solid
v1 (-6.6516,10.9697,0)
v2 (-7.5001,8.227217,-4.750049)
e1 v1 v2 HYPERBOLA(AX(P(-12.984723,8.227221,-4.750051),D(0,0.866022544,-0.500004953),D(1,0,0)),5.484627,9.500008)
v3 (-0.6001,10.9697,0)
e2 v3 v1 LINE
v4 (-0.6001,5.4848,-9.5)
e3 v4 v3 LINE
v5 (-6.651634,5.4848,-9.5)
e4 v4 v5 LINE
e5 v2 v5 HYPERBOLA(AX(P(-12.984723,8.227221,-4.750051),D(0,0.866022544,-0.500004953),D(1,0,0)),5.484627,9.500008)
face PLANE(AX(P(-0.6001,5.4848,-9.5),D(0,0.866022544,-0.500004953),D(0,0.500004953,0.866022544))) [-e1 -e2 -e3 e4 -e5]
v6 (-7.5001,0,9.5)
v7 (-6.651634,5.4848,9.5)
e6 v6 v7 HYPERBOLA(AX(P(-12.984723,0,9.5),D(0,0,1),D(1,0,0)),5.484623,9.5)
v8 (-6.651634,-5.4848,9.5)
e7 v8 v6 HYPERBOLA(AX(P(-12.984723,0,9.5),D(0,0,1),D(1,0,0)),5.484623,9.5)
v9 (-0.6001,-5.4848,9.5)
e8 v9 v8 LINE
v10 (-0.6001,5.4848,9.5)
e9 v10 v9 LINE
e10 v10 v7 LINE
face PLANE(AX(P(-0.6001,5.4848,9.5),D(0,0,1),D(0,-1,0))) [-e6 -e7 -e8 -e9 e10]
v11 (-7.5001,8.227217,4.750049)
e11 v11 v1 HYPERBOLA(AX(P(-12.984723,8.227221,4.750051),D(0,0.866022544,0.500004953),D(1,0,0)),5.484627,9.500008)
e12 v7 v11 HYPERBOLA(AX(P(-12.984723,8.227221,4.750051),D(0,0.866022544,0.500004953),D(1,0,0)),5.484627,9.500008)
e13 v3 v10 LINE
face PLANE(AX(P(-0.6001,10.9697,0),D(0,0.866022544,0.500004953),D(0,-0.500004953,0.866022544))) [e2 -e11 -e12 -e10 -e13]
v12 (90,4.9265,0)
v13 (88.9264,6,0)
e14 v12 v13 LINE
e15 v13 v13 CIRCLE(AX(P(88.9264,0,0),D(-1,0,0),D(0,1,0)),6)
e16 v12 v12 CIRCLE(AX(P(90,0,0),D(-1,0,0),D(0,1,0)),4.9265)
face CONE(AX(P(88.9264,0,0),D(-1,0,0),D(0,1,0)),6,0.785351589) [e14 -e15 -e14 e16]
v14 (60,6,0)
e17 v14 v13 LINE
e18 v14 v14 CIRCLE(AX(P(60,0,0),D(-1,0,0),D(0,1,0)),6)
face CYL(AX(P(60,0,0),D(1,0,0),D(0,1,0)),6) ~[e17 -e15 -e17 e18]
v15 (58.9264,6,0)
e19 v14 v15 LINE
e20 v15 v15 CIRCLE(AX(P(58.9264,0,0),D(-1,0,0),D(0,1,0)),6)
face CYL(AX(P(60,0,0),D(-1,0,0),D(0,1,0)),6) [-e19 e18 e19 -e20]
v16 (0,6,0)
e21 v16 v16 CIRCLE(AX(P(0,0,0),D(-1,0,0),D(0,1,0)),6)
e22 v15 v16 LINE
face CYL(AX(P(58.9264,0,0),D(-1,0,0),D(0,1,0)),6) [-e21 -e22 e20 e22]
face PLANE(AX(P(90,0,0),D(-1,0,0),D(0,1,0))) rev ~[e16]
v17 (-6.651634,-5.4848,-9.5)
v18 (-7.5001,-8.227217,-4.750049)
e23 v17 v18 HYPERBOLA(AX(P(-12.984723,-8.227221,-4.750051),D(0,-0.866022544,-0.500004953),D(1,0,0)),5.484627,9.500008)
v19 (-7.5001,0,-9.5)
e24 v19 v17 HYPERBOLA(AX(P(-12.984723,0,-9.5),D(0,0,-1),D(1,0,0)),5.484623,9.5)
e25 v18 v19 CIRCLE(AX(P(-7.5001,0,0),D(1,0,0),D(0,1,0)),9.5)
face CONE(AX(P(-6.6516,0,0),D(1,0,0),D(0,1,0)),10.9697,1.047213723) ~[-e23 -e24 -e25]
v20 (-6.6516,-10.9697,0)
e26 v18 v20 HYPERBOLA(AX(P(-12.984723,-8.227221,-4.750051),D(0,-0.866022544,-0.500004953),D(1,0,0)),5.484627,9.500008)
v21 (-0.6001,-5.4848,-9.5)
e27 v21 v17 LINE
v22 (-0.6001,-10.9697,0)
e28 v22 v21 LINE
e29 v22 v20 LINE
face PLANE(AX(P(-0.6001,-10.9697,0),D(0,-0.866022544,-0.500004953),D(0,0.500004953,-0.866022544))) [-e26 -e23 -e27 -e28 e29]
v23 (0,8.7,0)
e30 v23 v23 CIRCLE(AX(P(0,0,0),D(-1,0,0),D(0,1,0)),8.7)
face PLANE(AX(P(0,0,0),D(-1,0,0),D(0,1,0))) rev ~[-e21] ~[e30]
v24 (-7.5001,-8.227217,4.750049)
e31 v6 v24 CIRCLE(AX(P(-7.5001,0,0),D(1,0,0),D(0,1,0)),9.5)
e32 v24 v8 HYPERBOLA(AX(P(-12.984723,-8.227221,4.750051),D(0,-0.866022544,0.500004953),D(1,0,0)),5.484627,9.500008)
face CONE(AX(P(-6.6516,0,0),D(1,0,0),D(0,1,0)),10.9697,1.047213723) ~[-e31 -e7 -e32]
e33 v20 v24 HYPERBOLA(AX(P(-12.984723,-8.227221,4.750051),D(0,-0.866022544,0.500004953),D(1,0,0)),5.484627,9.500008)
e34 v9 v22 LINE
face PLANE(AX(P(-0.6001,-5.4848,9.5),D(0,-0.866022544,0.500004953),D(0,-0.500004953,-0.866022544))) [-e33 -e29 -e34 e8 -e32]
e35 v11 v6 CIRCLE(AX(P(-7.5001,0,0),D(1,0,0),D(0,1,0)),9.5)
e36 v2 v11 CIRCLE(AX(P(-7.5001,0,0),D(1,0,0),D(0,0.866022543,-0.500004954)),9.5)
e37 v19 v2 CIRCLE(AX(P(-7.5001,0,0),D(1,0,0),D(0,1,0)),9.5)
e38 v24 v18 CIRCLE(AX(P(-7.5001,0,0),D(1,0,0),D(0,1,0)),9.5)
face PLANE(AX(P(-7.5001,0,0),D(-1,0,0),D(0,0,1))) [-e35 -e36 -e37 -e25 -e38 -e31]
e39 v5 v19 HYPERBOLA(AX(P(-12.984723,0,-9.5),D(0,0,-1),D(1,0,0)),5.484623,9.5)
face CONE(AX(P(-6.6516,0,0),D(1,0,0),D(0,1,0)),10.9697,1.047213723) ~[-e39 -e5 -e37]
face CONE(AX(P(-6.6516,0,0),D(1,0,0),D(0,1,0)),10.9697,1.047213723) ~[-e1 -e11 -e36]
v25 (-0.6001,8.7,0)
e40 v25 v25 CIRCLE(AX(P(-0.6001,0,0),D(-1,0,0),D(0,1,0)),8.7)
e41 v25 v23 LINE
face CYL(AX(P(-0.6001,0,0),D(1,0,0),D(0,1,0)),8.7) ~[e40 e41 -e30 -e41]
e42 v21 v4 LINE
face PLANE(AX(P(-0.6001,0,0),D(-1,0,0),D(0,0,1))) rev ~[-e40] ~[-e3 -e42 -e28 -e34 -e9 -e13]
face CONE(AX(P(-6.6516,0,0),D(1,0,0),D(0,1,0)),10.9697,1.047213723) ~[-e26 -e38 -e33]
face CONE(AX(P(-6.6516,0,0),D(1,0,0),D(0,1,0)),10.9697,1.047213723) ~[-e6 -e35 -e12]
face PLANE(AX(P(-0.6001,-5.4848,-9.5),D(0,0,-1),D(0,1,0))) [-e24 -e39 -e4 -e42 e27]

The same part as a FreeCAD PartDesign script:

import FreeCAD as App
import Part
import Sketcher

V = App.Vector
Q = App.Units.Quantity


def edges_at(feature, points):
    """Names of the edges that pass closest to the given points."""
    edges = feature.Shape.Edges
    near = lambda p: min(range(len(edges)), key=lambda i: edges[i].distToShape(Part.Vertex(*p))[0])
    return sorted({f"Edge{near(p) + 1}" for p in points})

doc = App.newDocument("Part")
params = doc.addObject("Spreadsheet::Sheet", "Params")
for row, (alias, value) in enumerate([
    ("sketch1_width", "90 mm"),
    ("sketch1_width2", "0.6 mm"),
    ("sketch1_height", "6 mm"),
    ("sketch1_height2", "2.7 mm"),
    ("revolution_angle", "360 deg"),
    ("pad1_length", "6.9 mm"),
    ("groove_angle", "360 deg"),
    ("chamfer_size", "1.0735 mm"),
    ("chamfer_size2", "1.0736 mm"),
], start=1):
    params.set(f"A{row}", alias)
    params.set(f"B{row}", "=" + value)
    params.setAlias(f"B{row}", alias)

body = doc.addObject("PartDesign::Body", "Body")

sketch1 = body.newObject("Sketcher::SketchObject", "Sketch")
sketch1.AttachmentSupport = (doc.getObject("XY_Plane"), [""])
sketch1.MapMode = "FlatFace"
sketch1.addGeometry(Part.LineSegment(V(0, 6, 0), V(0, 8.7, 0)), False)
sketch1.addGeometry(Part.LineSegment(V(0, 8.7, 0), V(-0.6, 8.7, 0)), False)
sketch1.addGeometry(Part.LineSegment(V(-0.6, 8.7, 0), V(-0.6, 0, 0)), False)
sketch1.addGeometry(Part.LineSegment(V(-0.6, 0, 0), V(90, 0, 0)), False)
sketch1.addGeometry(Part.LineSegment(V(90, 0, 0), V(90, 6, 0)), False)
sketch1.addGeometry(Part.LineSegment(V(90, 6, 0), V(0, 6, 0)), False)
sketch1.addConstraint(Sketcher.Constraint("Coincident", 0, 2, 1, 1))
sketch1.addConstraint(Sketcher.Constraint("Coincident", 1, 2, 2, 1))
sketch1.addConstraint(Sketcher.Constraint("Coincident", 2, 2, 3, 1))
sketch1.addConstraint(Sketcher.Constraint("Coincident", 3, 2, 4, 1))
sketch1.addConstraint(Sketcher.Constraint("Coincident", 4, 2, 5, 1))
sketch1.addConstraint(Sketcher.Constraint("Coincident", 5, 2, 0, 1))
sketch1.addConstraint(Sketcher.Constraint("Vertical", 0))
sketch1.addConstraint(Sketcher.Constraint("Horizontal", 1))
sketch1.addConstraint(Sketcher.Constraint("Vertical", 2))
sketch1.addConstraint(Sketcher.Constraint("Horizontal", 3))
sketch1.addConstraint(Sketcher.Constraint("Vertical", 4))
sketch1.addConstraint(Sketcher.Constraint("Horizontal", 5))
sketch1.addConstraint(Sketcher.Constraint("PointOnObject", 0, 2, -2))
sketch1.addConstraint(Sketcher.Constraint("PointOnObject", 2, 2, -1))
sketch1.addConstraint(Sketcher.Constraint("DistanceX", 5, 2, 5, 1, 90.0))
sketch1.addConstraint(Sketcher.Constraint("DistanceX", 1, 2, 1, 1, 0.6))
sketch1.addConstraint(Sketcher.Constraint("DistanceY", 4, 1, 4, 2, 6.0))
sketch1.addConstraint(Sketcher.Constraint("DistanceY", 0, 1, 0, 2, 2.7))
sketch1.setExpression("Constraints[14]", "Params.sketch1_width")
sketch1.setExpression("Constraints[15]", "Params.sketch1_width2")
sketch1.setExpression("Constraints[16]", "Params.sketch1_height")
sketch1.setExpression("Constraints[17]", "Params.sketch1_height2")
revolution = body.newObject("PartDesign::Revolution", "Revolution")
revolution.Profile = sketch1
revolution.ReferenceAxis = (sketch1, ["H_Axis"])
revolution.setExpression("Angle", "Params.revolution_angle")

sketch2 = body.newObject("Sketcher::SketchObject", "Sketch001")
sketch2.AttachmentSupport = (doc.getObject("YZ_Plane"), [""])
sketch2.MapMode = "FlatFace"
sketch2.AttachmentOffset = App.Placement(V(0, 0, -0.6001), App.Rotation())
sketch2.addGeometry(Part.LineSegment(V(5, 10, 0), V(11, 0, 0)), False)
sketch2.addGeometry(Part.LineSegment(V(11, 0, 0), V(5, -10, 0)), False)
sketch2.addGeometry(Part.LineSegment(V(5, -10, 0), V(-5, -10, 0)), False)
sketch2.addGeometry(Part.LineSegment(V(-5, -10, 0), V(-11, 0, 0)), False)
sketch2.addGeometry(Part.LineSegment(V(-11, 0, 0), V(-5, 10, 0)), False)
sketch2.addGeometry(Part.LineSegment(V(-5, 10, 0), V(5, 10, 0)), False)
sketch2.addConstraint(Sketcher.Constraint("Coincident", 0, 2, 1, 1))
sketch2.addConstraint(Sketcher.Constraint("Coincident", 1, 2, 2, 1))
sketch2.addConstraint(Sketcher.Constraint("Coincident", 2, 2, 3, 1))
sketch2.addConstraint(Sketcher.Constraint("Coincident", 3, 2, 4, 1))
sketch2.addConstraint(Sketcher.Constraint("Coincident", 4, 2, 5, 1))
sketch2.addConstraint(Sketcher.Constraint("Coincident", 5, 2, 0, 1))
sketch2.addConstraint(Sketcher.Constraint("Horizontal", 2))
sketch2.addConstraint(Sketcher.Constraint("Horizontal", 5))
sketch2.addConstraint(Sketcher.Constraint("Symmetric", 0, 2, 3, 2, -1, 1))
sketch2.addConstraint(Sketcher.Constraint("Symmetric", 1, 2, 4, 2, -1, 1))
sketch2.addConstraint(Sketcher.Constraint("PointOnObject", 0, 2, -1))
sketch2.addConstraint(Sketcher.Constraint("Parallel", 0, 3))
sketch2.addConstraint(Sketcher.Constraint("Vertical", 2, 2, 4, 2))
sketch2.addConstraint(Sketcher.Constraint("DistanceY", 2, 2, 4, 2, 19.0))
sketch2.addConstraint(Sketcher.Constraint("Angle", 0, Q("-59.9997 deg")))
sketch2.addConstraint(Sketcher.Constraint("DistanceX", 2, 2, 2, 1, 10.9696))
pad1 = body.newObject("PartDesign::Pad", "Pad")
pad1.Profile = sketch2
pad1.setExpression("Length", "Params.pad1_length")
pad1.Reversed = True

sketch3 = body.newObject("Sketcher::SketchObject", "Sketch002")
sketch3.AttachmentSupport = (doc.getObject("XY_Plane"), [""])
sketch3.MapMode = "FlatFace"
sketch3.addGeometry(Part.LineSegment(V(-7.5, 11, 0), V(-7.5, 9.5, 0)), False)
sketch3.addGeometry(Part.LineSegment(V(-7.5, 9.5, 0), V(-6.7, 11, 0)), False)
sketch3.addGeometry(Part.LineSegment(V(-6.7, 11, 0), V(-7.5, 11, 0)), False)
sketch3.addConstraint(Sketcher.Constraint("Coincident", 0, 2, 1, 1))
sketch3.addConstraint(Sketcher.Constraint("Coincident", 1, 2, 2, 1))
sketch3.addConstraint(Sketcher.Constraint("Coincident", 2, 2, 0, 1))
sketch3.addConstraint(Sketcher.Constraint("Vertical", 0))
sketch3.addConstraint(Sketcher.Constraint("Horizontal", 2))
sketch3.addConstraint(Sketcher.Constraint("Angle", 1, Q("60.001 deg")))
sketch3.addConstraint(Sketcher.Constraint("DistanceX", 0, 2, -1, 1, 7.5))
sketch3.addConstraint(Sketcher.Constraint("DistanceY", -1, 1, 0, 2, 9.5))
sketch3.addConstraint(Sketcher.Constraint("Distance", 1, 1.697))
groove = body.newObject("PartDesign::Groove", "Groove")
groove.Profile = sketch3
groove.ReferenceAxis = (sketch3, ["H_Axis"])
groove.setExpression("Angle", "Params.groove_angle")
doc.recompute()

chamfer = body.newObject("PartDesign::Chamfer", "Chamfer")
chamfer.Base = (groove, edges_at(groove, [(90, -6, 0)]))
chamfer.ChamferType = "Two distances"
chamfer.setExpression("Size", "Params.chamfer_size")
chamfer.setExpression("Size2", "Params.chamfer_size2")

doc.recompute()
